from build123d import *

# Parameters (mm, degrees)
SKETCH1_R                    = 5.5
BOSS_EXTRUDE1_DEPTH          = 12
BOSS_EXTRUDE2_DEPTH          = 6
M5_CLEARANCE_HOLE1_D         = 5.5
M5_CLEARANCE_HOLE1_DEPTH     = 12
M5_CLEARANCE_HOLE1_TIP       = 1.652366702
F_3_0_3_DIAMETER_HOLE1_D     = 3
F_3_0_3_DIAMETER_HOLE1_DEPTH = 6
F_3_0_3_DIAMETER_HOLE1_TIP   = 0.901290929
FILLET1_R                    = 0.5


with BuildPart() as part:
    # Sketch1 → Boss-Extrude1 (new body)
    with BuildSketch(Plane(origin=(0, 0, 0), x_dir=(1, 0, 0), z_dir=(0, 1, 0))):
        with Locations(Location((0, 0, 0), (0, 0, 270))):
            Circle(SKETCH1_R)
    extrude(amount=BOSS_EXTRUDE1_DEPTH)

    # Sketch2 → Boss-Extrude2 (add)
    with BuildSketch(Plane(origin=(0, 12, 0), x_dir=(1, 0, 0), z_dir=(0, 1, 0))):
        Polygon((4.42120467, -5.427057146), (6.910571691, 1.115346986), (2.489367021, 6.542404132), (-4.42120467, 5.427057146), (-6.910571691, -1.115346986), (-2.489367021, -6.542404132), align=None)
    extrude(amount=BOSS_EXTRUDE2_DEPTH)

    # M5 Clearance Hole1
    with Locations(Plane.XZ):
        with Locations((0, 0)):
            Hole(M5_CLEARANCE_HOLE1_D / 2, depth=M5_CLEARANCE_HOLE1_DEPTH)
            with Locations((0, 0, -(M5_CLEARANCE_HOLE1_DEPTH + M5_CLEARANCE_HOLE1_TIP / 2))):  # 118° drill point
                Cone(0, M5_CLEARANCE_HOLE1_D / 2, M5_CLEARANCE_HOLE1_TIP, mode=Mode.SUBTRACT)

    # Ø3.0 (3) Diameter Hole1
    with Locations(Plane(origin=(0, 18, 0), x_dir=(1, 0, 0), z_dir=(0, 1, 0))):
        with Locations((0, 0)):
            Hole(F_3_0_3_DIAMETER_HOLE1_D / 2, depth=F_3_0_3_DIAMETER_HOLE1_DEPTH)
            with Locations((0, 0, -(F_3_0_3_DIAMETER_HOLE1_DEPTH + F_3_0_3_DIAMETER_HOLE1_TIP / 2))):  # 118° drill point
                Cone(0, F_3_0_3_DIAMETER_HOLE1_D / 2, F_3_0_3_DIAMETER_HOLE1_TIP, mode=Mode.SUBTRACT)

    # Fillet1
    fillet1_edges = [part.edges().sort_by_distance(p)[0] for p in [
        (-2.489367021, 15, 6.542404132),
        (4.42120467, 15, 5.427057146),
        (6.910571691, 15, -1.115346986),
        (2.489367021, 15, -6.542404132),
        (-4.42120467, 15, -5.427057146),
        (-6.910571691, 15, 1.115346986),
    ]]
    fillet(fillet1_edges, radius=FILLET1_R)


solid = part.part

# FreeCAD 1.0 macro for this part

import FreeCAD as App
import Part
import Sketcher
Q = App.Units.Quantity


def edges_at(feature, points):
    """Names of the edges that pass closest to the given points."""
    edges = feature.Shape.Edges
    near = lambda p: min(range(len(edges)), key=lambda i: edges[i].distToShape(Part.Vertex(*p))[0])
    return sorted({f"Edge{near(p) + 1}" for p in points})


def add_polygon(sketch, points):
    """Adds a closed chain of lines whose ends are joined by coincident constraints."""
    first, n = sketch.GeometryCount, len(points)
    for a, b in zip(points, points[1:] + points[:1]):
        sketch.addGeometry(Part.LineSegment(App.Vector(*a, 0), App.Vector(*b, 0)), False)
    for i in range(n):
        sketch.addConstraint(Sketcher.Constraint("Coincident", first + i, 2, first + (i + 1) % n, 1))

doc = App.newDocument("Part")
body = doc.addObject("PartDesign::Body", "Body")

# Sketch on XZ plane
sketch1 = body.newObject("Sketcher::SketchObject", "Sketch")
sketch1.AttachmentSupport = (doc.getObject("XZ_Plane"), [""])
sketch1.MapMode = "FlatFace"
sketch1.addGeometry(Part.Circle(App.Vector(0, 0, 0), App.Vector(0, 0, 1), 6), False)
sketch1.addConstraint(Sketcher.Constraint("Coincident", 0, 3, -1, 1))
sketch1.addConstraint(Sketcher.Constraint("Diameter", 0, Q("11 mm")))
pad1 = body.newObject("PartDesign::Pad", "Pad")
pad1.Profile = sketch1
pad1.Length = 12
pad1.Reversed = True

# Sketch on XZ plane
sketch2 = body.newObject("Sketcher::SketchObject", "Sketch001")
sketch2.AttachmentSupport = (doc.getObject("XZ_Plane"), [""])
sketch2.MapMode = "FlatFace"
sketch2.AttachmentOffset = App.Placement(App.Vector(0, 0, -12), App.Rotation())
add_polygon(sketch2, [(4, 5), (7, -1), (2, -7), (-4, -5), (-7, 1), (-2, 7)])  # lines 0-5
sketch2.addConstraint(Sketcher.Constraint("Symmetric", 0, 2, 3, 2, -1, 1))
sketch2.addConstraint(Sketcher.Constraint("Symmetric", 1, 2, 4, 2, -1, 1))
sketch2.addConstraint(Sketcher.Constraint("Symmetric", 2, 2, 5, 2, -1, 1))
sketch2.addConstraint(Sketcher.Constraint("Equal", 0, 1))
sketch2.addConstraint(Sketcher.Constraint("Equal", 1, 2))
sketch2.addConstraint(Sketcher.Constraint("Distance", 0, Q("7 mm")))
sketch2.addConstraint(Sketcher.Constraint("DistanceX", -1, 1, 0, 2, Q("6.910572 mm")))
sketch2.addConstraint(Sketcher.Constraint("DistanceX", 2, 2, 1, 2, Q("6.910572 mm")))
sketch2.addConstraint(Sketcher.Constraint("DistanceY", 2, 2, 0, 2, Q("4.31171 mm")))
pad2 = body.newObject("PartDesign::Pad", "Pad001")
pad2.Profile = sketch2
pad2.Length = 6
pad2.Reversed = True

# Sketch on XZ plane
sketch3 = body.newObject("Sketcher::SketchObject", "Sketch002")
sketch3.AttachmentSupport = (doc.getObject("XZ_Plane"), [""])
sketch3.MapMode = "FlatFace"
sketch3.addGeometry(Part.Circle(App.Vector(0, 0, 0), App.Vector(0, 0, 1), 2.8), False)
sketch3.addConstraint(Sketcher.Constraint("Coincident", 0, 3, -1, 1))
sketch3.addConstraint(Sketcher.Constraint("Diameter", 0, Q("5.5 mm")))
doc.recompute()
hole = body.newObject("PartDesign::Hole", "Hole")
hole.Profile = sketch3
hole.ThreadType = "None"
hole.Diameter = 5.5
hole.DepthType = "Dimension"
hole.Depth = 12
hole.DrillPoint = "Angled"
hole.DrillPointAngle = 118

# Sketch on XZ plane
sketch4 = body.newObject("Sketcher::SketchObject", "Sketch003")
sketch4.AttachmentSupport = (doc.getObject("XZ_Plane"), [""])
sketch4.MapMode = "FlatFace"
sketch4.AttachmentOffset = App.Placement(App.Vector(0, 0, -18), App.Rotation())
sketch4.addGeometry(Part.Circle(App.Vector(0, 0, 0), App.Vector(0, 0, 1), 1.5), False)
sketch4.addConstraint(Sketcher.Constraint("Coincident", 0, 3, -1, 1))
sketch4.addConstraint(Sketcher.Constraint("Diameter", 0, Q("3 mm")))
doc.recompute()
hole2 = body.newObject("PartDesign::Hole", "Hole001")
hole2.Profile = sketch4
hole2.ThreadType = "None"
hole2.Diameter = 3
hole2.DepthType = "Dimension"
hole2.Depth = 6
hole2.DrillPoint = "Angled"
hole2.DrillPointAngle = 118
hole2.Reversed = True
doc.recompute()

fillet = body.newObject("PartDesign::Fillet", "Fillet")
fillet.Base = (hole2, edges_at(hole2, [
    (-2.489, 15, 6.542),
    (4.421, 15, 5.427),
    (6.911, 15, -1.115),
    (2.489, 15, -6.542),
    (-4.421, 15, -5.427),
    (-6.911, 15, 1.115),
]))
fillet.Radius = 0.5

doc.recompute()
